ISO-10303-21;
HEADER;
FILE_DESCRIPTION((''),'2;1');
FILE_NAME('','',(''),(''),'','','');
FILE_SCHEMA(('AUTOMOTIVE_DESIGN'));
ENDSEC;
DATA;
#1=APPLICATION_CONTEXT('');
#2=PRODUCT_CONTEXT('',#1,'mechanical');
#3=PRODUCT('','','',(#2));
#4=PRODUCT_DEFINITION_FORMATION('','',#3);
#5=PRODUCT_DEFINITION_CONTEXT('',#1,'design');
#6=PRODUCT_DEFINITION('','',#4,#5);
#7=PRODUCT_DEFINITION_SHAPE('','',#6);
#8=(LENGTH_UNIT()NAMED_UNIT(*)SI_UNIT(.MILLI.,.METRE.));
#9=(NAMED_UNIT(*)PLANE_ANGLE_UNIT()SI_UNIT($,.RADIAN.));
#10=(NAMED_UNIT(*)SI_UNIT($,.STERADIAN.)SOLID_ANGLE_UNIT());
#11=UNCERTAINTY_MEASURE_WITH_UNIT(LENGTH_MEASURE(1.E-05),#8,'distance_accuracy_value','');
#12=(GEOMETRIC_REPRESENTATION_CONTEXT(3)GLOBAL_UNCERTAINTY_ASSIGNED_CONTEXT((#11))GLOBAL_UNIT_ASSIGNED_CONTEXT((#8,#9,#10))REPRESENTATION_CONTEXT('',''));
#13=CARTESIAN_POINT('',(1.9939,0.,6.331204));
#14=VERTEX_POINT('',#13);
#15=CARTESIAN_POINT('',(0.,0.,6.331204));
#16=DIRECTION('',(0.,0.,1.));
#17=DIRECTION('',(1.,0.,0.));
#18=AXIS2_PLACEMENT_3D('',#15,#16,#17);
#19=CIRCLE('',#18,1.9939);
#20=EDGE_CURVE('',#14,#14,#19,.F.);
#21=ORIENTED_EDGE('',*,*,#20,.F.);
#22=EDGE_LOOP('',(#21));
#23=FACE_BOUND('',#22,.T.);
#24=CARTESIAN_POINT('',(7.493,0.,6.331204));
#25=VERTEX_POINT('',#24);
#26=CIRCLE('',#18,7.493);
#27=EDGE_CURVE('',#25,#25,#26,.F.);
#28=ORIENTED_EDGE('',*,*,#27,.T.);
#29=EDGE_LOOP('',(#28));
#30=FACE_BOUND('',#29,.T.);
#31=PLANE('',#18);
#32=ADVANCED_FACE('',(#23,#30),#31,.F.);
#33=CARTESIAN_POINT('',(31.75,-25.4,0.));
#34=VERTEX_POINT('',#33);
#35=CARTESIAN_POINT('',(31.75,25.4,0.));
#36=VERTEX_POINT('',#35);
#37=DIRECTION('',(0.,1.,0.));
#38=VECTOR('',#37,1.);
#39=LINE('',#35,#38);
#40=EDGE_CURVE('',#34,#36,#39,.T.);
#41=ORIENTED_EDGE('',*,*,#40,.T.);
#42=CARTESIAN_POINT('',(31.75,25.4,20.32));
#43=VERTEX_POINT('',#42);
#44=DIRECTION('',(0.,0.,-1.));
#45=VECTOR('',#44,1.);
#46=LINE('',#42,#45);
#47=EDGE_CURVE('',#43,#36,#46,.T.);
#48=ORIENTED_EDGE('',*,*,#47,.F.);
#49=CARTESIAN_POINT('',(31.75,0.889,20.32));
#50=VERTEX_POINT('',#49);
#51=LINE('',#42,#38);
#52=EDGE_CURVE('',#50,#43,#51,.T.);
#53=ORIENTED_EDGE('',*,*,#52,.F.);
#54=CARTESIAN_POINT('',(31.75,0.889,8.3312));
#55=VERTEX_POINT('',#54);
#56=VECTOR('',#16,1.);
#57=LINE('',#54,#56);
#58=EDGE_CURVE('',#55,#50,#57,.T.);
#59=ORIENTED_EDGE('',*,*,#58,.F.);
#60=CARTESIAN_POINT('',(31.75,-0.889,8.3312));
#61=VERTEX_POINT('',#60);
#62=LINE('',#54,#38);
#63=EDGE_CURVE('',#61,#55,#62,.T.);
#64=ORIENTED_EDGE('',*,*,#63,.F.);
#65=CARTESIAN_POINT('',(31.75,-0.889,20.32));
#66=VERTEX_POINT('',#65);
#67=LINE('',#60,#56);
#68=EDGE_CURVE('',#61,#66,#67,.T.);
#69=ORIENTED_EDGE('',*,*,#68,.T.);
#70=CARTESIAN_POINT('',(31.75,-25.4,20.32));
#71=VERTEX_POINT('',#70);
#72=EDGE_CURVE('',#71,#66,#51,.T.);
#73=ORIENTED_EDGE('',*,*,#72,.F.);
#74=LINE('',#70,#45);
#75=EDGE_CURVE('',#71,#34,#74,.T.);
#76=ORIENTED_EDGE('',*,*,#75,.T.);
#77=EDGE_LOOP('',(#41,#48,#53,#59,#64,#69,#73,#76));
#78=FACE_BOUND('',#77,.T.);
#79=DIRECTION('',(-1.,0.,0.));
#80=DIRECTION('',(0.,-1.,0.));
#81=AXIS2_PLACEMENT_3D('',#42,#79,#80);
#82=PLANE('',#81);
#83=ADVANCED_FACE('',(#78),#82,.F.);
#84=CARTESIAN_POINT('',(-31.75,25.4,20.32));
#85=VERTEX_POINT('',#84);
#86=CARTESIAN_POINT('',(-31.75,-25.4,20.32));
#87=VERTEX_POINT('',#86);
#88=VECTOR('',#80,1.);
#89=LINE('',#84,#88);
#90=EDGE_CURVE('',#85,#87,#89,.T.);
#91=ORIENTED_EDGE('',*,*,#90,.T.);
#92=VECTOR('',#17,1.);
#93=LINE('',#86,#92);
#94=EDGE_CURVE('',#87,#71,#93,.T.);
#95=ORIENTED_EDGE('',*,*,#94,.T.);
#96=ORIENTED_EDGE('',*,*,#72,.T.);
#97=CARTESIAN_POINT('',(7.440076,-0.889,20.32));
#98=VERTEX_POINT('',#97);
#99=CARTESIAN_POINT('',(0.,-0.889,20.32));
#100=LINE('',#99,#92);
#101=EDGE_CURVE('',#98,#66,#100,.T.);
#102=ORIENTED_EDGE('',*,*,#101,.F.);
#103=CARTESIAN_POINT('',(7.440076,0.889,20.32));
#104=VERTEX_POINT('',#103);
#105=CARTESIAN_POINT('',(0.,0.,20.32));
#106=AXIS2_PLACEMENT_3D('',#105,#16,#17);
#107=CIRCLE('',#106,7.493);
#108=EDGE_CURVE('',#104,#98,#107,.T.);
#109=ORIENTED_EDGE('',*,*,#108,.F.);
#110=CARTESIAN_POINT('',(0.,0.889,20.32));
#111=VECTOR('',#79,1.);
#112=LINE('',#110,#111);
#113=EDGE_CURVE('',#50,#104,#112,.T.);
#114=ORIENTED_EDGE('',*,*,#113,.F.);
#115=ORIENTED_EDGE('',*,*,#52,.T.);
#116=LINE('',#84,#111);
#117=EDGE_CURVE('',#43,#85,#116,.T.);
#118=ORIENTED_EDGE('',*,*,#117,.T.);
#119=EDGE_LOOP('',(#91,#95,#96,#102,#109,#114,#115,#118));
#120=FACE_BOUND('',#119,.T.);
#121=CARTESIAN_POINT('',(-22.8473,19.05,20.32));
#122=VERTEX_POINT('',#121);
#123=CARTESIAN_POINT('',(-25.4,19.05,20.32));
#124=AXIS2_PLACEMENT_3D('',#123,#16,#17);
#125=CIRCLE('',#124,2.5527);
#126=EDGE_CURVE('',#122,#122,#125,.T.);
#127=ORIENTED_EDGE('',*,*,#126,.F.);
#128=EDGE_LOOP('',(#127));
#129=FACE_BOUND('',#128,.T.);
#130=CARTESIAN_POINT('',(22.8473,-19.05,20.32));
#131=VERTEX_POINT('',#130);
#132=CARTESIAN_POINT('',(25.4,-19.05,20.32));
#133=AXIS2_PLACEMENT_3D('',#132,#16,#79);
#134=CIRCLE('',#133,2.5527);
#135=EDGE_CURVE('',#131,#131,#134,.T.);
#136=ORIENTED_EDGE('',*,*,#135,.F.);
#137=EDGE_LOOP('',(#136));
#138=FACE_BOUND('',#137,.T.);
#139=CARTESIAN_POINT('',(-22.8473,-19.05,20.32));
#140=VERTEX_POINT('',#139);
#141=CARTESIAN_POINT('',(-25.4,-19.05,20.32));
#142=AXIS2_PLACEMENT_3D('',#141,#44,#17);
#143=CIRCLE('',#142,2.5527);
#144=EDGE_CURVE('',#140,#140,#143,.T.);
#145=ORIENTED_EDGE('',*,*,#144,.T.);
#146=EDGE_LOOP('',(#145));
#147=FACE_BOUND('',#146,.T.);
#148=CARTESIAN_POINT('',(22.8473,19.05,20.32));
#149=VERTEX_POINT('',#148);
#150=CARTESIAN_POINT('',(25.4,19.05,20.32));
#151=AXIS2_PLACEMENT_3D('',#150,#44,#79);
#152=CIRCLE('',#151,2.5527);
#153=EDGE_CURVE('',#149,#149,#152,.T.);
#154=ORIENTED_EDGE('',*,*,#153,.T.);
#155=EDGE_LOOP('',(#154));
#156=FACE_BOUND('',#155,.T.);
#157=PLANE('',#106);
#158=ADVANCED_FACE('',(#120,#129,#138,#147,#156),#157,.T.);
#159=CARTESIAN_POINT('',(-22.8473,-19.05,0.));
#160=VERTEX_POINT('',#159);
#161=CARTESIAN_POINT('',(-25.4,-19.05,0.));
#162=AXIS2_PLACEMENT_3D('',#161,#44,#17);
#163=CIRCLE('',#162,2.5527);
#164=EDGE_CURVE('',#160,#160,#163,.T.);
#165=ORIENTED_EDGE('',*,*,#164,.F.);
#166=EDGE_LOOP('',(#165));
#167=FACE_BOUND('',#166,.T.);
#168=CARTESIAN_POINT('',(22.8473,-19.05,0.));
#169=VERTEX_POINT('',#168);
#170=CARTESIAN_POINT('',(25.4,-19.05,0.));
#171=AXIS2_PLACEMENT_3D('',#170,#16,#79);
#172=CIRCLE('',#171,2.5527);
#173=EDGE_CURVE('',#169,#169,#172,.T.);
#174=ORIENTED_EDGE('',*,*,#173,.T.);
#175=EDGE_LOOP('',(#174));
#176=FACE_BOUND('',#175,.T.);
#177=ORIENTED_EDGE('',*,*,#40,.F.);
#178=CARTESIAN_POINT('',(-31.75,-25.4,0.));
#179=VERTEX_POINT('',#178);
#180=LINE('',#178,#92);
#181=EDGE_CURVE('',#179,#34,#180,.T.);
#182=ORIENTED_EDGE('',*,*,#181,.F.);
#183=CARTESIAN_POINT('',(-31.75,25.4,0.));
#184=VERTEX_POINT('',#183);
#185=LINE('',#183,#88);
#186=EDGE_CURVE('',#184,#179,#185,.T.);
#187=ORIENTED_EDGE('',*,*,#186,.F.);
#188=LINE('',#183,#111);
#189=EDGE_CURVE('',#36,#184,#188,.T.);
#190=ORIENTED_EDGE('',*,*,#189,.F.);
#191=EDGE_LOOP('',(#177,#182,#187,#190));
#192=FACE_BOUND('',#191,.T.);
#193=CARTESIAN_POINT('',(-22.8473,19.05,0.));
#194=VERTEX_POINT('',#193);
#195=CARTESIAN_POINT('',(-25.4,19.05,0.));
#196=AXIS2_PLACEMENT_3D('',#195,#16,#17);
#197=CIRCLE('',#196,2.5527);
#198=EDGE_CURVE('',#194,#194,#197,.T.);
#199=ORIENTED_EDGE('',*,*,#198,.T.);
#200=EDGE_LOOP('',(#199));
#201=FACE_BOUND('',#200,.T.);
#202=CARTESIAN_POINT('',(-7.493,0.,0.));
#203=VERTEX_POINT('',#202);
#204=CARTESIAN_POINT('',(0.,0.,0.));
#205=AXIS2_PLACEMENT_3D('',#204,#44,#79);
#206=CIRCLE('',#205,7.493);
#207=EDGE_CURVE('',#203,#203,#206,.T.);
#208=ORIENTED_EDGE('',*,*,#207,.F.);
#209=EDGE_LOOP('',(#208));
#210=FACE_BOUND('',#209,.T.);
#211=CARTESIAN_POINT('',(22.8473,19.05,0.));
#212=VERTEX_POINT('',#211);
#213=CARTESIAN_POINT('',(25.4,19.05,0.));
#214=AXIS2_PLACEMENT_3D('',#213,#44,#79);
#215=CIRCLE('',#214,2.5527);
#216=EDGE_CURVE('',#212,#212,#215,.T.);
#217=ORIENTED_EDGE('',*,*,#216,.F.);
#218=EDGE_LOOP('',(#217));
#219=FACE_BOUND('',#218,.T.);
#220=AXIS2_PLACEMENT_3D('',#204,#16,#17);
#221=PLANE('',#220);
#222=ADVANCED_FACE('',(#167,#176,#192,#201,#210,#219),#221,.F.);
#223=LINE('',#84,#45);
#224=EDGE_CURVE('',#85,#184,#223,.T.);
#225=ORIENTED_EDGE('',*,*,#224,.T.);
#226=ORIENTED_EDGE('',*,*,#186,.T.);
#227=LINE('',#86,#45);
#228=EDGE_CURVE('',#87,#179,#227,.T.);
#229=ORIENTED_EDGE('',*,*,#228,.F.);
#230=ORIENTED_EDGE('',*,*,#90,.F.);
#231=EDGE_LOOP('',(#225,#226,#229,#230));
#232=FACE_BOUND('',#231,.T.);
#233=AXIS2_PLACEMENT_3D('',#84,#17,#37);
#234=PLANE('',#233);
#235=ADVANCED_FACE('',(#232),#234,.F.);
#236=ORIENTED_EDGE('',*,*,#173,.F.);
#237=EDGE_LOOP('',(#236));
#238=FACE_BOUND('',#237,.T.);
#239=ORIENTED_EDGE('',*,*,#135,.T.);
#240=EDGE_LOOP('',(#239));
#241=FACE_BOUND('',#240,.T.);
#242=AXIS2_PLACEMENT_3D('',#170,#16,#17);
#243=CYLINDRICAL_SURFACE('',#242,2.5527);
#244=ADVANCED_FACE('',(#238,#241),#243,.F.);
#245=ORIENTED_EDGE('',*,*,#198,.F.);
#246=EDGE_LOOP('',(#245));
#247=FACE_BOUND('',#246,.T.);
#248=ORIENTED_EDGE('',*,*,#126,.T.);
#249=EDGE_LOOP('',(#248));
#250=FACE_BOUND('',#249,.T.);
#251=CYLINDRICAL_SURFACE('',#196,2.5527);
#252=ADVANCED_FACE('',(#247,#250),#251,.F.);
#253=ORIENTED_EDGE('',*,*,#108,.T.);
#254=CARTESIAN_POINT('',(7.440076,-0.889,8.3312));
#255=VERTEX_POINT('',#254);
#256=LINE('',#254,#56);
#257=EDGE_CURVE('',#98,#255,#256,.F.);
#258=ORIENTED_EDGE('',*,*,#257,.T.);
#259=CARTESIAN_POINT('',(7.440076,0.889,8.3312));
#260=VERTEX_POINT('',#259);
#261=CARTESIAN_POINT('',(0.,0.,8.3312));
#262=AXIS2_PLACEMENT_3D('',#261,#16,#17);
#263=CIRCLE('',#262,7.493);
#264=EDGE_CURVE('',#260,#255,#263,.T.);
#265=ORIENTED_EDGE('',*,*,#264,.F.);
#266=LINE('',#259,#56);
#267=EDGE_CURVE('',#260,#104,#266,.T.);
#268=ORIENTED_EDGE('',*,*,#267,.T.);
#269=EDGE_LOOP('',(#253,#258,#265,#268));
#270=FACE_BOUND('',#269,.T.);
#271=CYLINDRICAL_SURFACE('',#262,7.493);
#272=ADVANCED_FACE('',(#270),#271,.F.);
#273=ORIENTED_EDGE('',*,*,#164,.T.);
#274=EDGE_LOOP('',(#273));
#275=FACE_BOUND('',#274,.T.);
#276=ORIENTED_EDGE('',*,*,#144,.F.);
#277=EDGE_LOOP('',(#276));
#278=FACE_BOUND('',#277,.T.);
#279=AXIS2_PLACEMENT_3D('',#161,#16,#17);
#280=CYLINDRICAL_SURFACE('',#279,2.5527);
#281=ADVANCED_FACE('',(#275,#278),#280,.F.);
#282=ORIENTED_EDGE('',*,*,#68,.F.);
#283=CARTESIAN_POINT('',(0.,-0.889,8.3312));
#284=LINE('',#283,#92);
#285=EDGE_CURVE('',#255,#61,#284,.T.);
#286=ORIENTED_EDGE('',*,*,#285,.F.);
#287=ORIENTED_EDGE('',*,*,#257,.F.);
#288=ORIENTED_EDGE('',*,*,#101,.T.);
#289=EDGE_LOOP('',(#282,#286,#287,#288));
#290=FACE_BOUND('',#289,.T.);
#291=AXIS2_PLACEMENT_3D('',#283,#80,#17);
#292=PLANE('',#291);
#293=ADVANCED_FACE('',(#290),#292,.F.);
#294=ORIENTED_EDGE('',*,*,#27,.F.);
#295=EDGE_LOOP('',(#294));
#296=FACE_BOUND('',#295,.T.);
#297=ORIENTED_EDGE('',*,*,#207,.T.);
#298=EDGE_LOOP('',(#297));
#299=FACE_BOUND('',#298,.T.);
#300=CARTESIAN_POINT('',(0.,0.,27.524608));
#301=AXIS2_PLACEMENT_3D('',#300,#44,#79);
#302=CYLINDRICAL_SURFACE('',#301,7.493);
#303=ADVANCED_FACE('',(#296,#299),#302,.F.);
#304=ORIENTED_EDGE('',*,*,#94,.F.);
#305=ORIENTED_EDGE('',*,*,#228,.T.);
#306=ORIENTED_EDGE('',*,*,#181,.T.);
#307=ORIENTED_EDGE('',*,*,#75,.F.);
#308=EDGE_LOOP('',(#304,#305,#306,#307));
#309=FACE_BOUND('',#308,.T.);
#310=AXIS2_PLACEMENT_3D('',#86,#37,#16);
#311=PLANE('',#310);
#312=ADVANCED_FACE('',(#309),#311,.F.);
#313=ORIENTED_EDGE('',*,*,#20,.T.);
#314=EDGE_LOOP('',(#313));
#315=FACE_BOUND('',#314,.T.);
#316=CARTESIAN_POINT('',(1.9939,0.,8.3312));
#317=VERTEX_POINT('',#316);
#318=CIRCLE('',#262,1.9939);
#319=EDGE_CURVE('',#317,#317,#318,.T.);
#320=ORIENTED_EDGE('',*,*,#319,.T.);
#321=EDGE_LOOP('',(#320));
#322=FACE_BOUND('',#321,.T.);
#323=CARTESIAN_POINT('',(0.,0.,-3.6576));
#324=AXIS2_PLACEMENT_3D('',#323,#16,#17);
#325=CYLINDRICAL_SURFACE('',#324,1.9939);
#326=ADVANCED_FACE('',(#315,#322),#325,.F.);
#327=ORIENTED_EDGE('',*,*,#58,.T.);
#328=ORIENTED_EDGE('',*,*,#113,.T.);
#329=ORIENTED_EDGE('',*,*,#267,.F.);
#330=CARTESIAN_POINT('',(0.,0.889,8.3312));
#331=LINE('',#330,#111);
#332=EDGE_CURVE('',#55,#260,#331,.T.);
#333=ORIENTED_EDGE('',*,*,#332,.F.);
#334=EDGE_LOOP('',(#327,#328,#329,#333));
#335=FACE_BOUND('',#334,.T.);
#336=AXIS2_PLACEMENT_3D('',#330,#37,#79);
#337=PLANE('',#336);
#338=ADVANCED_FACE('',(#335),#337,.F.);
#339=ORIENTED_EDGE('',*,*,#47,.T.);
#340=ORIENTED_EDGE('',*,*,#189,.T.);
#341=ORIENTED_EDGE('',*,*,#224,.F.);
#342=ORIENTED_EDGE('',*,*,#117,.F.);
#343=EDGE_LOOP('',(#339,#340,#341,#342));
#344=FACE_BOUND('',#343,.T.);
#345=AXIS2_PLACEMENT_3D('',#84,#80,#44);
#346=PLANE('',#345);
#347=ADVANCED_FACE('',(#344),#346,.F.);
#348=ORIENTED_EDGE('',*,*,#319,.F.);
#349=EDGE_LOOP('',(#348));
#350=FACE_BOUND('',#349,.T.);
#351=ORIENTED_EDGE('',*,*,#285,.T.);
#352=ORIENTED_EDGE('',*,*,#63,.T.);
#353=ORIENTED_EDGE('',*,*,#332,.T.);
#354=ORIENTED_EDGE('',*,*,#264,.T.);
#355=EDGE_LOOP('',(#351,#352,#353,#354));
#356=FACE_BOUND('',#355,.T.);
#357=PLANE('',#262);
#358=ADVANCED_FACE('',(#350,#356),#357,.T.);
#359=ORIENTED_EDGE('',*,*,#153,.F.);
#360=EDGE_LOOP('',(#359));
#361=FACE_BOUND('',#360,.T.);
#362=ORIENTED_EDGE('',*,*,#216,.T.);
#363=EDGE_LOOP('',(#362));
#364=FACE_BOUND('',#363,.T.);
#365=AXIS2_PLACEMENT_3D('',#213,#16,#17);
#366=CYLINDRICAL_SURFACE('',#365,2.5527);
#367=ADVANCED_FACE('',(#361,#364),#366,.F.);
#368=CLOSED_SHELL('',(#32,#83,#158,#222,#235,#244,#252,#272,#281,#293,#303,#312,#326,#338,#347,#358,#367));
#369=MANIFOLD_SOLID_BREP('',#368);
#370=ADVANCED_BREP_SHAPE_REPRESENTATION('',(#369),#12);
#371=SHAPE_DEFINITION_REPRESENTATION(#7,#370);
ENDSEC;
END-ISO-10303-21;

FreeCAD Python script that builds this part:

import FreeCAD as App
import Part
import Sketcher
Q = App.Units.Quantity


def add_polygon(sketch, points):
    """Adds a closed chain of lines whose ends are joined by coincident constraints."""
    first, n = sketch.GeometryCount, len(points)
    for a, b in zip(points, points[1:] + points[:1]):
        sketch.addGeometry(Part.LineSegment(App.Vector(*a, 0), App.Vector(*b, 0)), False)
    for i in range(n):
        sketch.addConstraint(Sketcher.Constraint("Coincident", first + i, 2, first + (i + 1) % n, 1))

doc = App.newDocument("Part")
body = doc.addObject("PartDesign::Body", "Body")

# Sketch on XY plane
sketch1 = doc.addObject("Sketcher::SketchObject", "Sketch")
body.addObject(sketch1)
sketch1.AttachmentSupport = (doc.XY_Plane, [""])
sketch1.MapMode = "FlatFace"
add_polygon(sketch1, [(-32, 25), (-32, -25), (32, -25), (32, 25)])  # lines 0-3
sketch1.addConstraint(Sketcher.Constraint("Vertical", 0))
sketch1.addConstraint(Sketcher.Constraint("Horizontal", 1))
sketch1.addConstraint(Sketcher.Constraint("Vertical", 2))
sketch1.addConstraint(Sketcher.Constraint("Horizontal", 3))
sketch1.addConstraint(Sketcher.Constraint("Symmetric", 0, 2, 2, 2, -1, 1))
sketch1.addConstraint(Sketcher.Constraint("DistanceY", 0, 2, 0, 1, Q("2 in")))
sketch1.addConstraint(Sketcher.Constraint("DistanceX", 1, 1, 1, 2, Q("2.5 in")))
pad1 = doc.addObject("PartDesign::Pad", "Pad")
body.addObject(pad1)
pad1.Profile = sketch1
pad1.Length = Q("0.8 in")

# Sketch on XY plane
sketch2 = doc.addObject("Sketcher::SketchObject", "Sketch001")
body.addObject(sketch2)
sketch2.AttachmentSupport = (doc.XY_Plane, [""])
sketch2.MapMode = "FlatFace"
sketch2.AttachmentOffset = App.Placement(App.Vector(0, 0, 0.8 * 25.4), App.Rotation())
sketch2.addGeometry(Part.Circle(App.Vector(0, 0, 0), App.Vector(0, 0, 1), 7), False)
sketch2.addConstraint(Sketcher.Constraint("Coincident", 0, 3, -1, 1))
sketch2.addConstraint(Sketcher.Constraint("Diameter", 0, Q("0.59 in")))
pocket1 = doc.addObject("PartDesign::Pocket", "Pocket")
body.addObject(pocket1)
pocket1.Profile = sketch2
pocket1.Length = Q("0.472 in")

# Sketch on XY plane
sketch3 = doc.addObject("Sketcher::SketchObject", "Sketch002")
body.addObject(sketch3)
sketch3.AttachmentSupport = (doc.XY_Plane, [""])
sketch3.MapMode = "FlatFace"
sketch3.AttachmentOffset = App.Placement(App.Vector(0, 0, 0.8 * 25.4), App.Rotation())
add_polygon(sketch3, [(0, 0.9), (0, -0.9), (31.8, -0.9), (31.8, 0.9)])  # lines 0-3
sketch3.addConstraint(Sketcher.Constraint("Vertical", 0))
sketch3.addConstraint(Sketcher.Constraint("Horizontal", 1))
sketch3.addConstraint(Sketcher.Constraint("Vertical", 2))
sketch3.addConstraint(Sketcher.Constraint("Horizontal", 3))
sketch3.addConstraint(Sketcher.Constraint("Symmetric", 0, 2, 3, 2, -1, 1))
sketch3.addConstraint(Sketcher.Constraint("DistanceX", 1, 1, 1, 2, Q("1.25 in")))
sketch3.addConstraint(Sketcher.Constraint("DistanceY", 0, 2, 0, 1, Q("0.07 in")))
pocket2 = doc.addObject("PartDesign::Pocket", "Pocket001")
body.addObject(pocket2)
pocket2.Profile = sketch3
pocket2.Length = Q("0.472 in")

# Sketch on XY plane
sketch4 = doc.addObject("Sketcher::SketchObject", "Sketch003")
body.addObject(sketch4)
sketch4.AttachmentSupport = (doc.XY_Plane, [""])
sketch4.MapMode = "FlatFace"
sketch4.AttachmentOffset = App.Placement(App.Vector(0, 0, 0.328 * 25.4), App.Rotation())
sketch4.addGeometry(Part.Circle(App.Vector(0, 0, 0), App.Vector(0, 0, 1), 2), False)
sketch4.addConstraint(Sketcher.Constraint("Coincident", 0, 3, -1, 1))
sketch4.addConstraint(Sketcher.Constraint("Diameter", 0, Q("0.157 in")))
pocket3 = doc.addObject("PartDesign::Pocket", "Pocket002")
body.addObject(pocket3)
pocket3.Profile = sketch4
pocket3.Length = Q("0.472 in")

# Sketch on XY plane
sketch5 = doc.addObject("Sketcher::SketchObject", "Sketch004")
body.addObject(sketch5)
sketch5.AttachmentSupport = (doc.XY_Plane, [""])
sketch5.MapMode = "FlatFace"
sketch5.AttachmentOffset = App.Placement(App.Vector(0, 0, 6.331204), App.Rotation())
sketch5.addGeometry(Part.Circle(App.Vector(0, 0, 0), App.Vector(0, 0, 1), 7), False)
sketch5.addConstraint(Sketcher.Constraint("Coincident", 0, 3, -1, 1))
sketch5.addConstraint(Sketcher.Constraint("Diameter", 0, Q("0.59 in")))
pocket4 = doc.addObject("PartDesign::Pocket", "Pocket003")
body.addObject(pocket4)
pocket4.Profile = sketch5
pocket4.Length = 6.331204

# Sketch on XY plane
sketch6 = doc.addObject("Sketcher::SketchObject", "Sketch005")
body.addObject(sketch6)
sketch6.AttachmentSupport = (doc.XY_Plane, [""])
sketch6.MapMode = "FlatFace"
sketch6.AttachmentOffset = App.Placement(App.Vector(0, 0, 0.8 * 25.4), App.Rotation())
sketch6.addGeometry(Part.Circle(App.Vector(-25.4, 19.1, 0), App.Vector(0, 0, 1), 2.6), False)
sketch6.addConstraint(Sketcher.Constraint("Diameter", 0, Q("0.201 in")))
sketch6.addConstraint(Sketcher.Constraint("DistanceX", 0, 3, -1, 1, Q("1 in")))
sketch6.addConstraint(Sketcher.Constraint("DistanceY", -1, 1, 0, 3, Q("0.75 in")))
pocket5 = doc.addObject("PartDesign::Pocket", "Pocket004")
body.addObject(pocket5)
pocket5.Profile = sketch6
pocket5.Type = "ThroughAll"
doc.recompute()

mirrored = doc.addObject("PartDesign::Mirrored", "Mirrored")
body.addObject(mirrored)
mirrored.Originals = [pocket5]
mirrored.MirrorPlane = (doc.YZ_Plane, [""])
body.Tip = mirrored
doc.recompute()

mirrored2 = doc.addObject("PartDesign::Mirrored", "Mirrored001")
body.addObject(mirrored2)
mirrored2.Originals = [pocket5]
mirrored2.MirrorPlane = (doc.XZ_Plane, [""])
body.Tip = mirrored2

# Sketch on XY plane
sketch7 = doc.addObject("Sketcher::SketchObject", "Sketch006")
body.addObject(sketch7)
sketch7.AttachmentSupport = (doc.XY_Plane, [""])
sketch7.MapMode = "FlatFace"
sketch7.AttachmentOffset = App.Placement(App.Vector(0, 0, 0.8 * 25.4), App.Rotation())
sketch7.addGeometry(Part.Circle(App.Vector(25.4, -19.1, 0), App.Vector(0, 0, 1), 2.6), False)
sketch7.addConstraint(Sketcher.Constraint("Diameter", 0, Q("0.201 in")))
sketch7.addConstraint(Sketcher.Constraint("DistanceX", -1, 1, 0, 3, Q("1 in")))
sketch7.addConstraint(Sketcher.Constraint("DistanceY", 0, 3, -1, 1, Q("0.75 in")))
pocket6 = doc.addObject("PartDesign::Pocket", "Pocket005")
body.addObject(pocket6)
pocket6.Profile = sketch7
pocket6.Type = "ThroughAll"

doc.recompute()
